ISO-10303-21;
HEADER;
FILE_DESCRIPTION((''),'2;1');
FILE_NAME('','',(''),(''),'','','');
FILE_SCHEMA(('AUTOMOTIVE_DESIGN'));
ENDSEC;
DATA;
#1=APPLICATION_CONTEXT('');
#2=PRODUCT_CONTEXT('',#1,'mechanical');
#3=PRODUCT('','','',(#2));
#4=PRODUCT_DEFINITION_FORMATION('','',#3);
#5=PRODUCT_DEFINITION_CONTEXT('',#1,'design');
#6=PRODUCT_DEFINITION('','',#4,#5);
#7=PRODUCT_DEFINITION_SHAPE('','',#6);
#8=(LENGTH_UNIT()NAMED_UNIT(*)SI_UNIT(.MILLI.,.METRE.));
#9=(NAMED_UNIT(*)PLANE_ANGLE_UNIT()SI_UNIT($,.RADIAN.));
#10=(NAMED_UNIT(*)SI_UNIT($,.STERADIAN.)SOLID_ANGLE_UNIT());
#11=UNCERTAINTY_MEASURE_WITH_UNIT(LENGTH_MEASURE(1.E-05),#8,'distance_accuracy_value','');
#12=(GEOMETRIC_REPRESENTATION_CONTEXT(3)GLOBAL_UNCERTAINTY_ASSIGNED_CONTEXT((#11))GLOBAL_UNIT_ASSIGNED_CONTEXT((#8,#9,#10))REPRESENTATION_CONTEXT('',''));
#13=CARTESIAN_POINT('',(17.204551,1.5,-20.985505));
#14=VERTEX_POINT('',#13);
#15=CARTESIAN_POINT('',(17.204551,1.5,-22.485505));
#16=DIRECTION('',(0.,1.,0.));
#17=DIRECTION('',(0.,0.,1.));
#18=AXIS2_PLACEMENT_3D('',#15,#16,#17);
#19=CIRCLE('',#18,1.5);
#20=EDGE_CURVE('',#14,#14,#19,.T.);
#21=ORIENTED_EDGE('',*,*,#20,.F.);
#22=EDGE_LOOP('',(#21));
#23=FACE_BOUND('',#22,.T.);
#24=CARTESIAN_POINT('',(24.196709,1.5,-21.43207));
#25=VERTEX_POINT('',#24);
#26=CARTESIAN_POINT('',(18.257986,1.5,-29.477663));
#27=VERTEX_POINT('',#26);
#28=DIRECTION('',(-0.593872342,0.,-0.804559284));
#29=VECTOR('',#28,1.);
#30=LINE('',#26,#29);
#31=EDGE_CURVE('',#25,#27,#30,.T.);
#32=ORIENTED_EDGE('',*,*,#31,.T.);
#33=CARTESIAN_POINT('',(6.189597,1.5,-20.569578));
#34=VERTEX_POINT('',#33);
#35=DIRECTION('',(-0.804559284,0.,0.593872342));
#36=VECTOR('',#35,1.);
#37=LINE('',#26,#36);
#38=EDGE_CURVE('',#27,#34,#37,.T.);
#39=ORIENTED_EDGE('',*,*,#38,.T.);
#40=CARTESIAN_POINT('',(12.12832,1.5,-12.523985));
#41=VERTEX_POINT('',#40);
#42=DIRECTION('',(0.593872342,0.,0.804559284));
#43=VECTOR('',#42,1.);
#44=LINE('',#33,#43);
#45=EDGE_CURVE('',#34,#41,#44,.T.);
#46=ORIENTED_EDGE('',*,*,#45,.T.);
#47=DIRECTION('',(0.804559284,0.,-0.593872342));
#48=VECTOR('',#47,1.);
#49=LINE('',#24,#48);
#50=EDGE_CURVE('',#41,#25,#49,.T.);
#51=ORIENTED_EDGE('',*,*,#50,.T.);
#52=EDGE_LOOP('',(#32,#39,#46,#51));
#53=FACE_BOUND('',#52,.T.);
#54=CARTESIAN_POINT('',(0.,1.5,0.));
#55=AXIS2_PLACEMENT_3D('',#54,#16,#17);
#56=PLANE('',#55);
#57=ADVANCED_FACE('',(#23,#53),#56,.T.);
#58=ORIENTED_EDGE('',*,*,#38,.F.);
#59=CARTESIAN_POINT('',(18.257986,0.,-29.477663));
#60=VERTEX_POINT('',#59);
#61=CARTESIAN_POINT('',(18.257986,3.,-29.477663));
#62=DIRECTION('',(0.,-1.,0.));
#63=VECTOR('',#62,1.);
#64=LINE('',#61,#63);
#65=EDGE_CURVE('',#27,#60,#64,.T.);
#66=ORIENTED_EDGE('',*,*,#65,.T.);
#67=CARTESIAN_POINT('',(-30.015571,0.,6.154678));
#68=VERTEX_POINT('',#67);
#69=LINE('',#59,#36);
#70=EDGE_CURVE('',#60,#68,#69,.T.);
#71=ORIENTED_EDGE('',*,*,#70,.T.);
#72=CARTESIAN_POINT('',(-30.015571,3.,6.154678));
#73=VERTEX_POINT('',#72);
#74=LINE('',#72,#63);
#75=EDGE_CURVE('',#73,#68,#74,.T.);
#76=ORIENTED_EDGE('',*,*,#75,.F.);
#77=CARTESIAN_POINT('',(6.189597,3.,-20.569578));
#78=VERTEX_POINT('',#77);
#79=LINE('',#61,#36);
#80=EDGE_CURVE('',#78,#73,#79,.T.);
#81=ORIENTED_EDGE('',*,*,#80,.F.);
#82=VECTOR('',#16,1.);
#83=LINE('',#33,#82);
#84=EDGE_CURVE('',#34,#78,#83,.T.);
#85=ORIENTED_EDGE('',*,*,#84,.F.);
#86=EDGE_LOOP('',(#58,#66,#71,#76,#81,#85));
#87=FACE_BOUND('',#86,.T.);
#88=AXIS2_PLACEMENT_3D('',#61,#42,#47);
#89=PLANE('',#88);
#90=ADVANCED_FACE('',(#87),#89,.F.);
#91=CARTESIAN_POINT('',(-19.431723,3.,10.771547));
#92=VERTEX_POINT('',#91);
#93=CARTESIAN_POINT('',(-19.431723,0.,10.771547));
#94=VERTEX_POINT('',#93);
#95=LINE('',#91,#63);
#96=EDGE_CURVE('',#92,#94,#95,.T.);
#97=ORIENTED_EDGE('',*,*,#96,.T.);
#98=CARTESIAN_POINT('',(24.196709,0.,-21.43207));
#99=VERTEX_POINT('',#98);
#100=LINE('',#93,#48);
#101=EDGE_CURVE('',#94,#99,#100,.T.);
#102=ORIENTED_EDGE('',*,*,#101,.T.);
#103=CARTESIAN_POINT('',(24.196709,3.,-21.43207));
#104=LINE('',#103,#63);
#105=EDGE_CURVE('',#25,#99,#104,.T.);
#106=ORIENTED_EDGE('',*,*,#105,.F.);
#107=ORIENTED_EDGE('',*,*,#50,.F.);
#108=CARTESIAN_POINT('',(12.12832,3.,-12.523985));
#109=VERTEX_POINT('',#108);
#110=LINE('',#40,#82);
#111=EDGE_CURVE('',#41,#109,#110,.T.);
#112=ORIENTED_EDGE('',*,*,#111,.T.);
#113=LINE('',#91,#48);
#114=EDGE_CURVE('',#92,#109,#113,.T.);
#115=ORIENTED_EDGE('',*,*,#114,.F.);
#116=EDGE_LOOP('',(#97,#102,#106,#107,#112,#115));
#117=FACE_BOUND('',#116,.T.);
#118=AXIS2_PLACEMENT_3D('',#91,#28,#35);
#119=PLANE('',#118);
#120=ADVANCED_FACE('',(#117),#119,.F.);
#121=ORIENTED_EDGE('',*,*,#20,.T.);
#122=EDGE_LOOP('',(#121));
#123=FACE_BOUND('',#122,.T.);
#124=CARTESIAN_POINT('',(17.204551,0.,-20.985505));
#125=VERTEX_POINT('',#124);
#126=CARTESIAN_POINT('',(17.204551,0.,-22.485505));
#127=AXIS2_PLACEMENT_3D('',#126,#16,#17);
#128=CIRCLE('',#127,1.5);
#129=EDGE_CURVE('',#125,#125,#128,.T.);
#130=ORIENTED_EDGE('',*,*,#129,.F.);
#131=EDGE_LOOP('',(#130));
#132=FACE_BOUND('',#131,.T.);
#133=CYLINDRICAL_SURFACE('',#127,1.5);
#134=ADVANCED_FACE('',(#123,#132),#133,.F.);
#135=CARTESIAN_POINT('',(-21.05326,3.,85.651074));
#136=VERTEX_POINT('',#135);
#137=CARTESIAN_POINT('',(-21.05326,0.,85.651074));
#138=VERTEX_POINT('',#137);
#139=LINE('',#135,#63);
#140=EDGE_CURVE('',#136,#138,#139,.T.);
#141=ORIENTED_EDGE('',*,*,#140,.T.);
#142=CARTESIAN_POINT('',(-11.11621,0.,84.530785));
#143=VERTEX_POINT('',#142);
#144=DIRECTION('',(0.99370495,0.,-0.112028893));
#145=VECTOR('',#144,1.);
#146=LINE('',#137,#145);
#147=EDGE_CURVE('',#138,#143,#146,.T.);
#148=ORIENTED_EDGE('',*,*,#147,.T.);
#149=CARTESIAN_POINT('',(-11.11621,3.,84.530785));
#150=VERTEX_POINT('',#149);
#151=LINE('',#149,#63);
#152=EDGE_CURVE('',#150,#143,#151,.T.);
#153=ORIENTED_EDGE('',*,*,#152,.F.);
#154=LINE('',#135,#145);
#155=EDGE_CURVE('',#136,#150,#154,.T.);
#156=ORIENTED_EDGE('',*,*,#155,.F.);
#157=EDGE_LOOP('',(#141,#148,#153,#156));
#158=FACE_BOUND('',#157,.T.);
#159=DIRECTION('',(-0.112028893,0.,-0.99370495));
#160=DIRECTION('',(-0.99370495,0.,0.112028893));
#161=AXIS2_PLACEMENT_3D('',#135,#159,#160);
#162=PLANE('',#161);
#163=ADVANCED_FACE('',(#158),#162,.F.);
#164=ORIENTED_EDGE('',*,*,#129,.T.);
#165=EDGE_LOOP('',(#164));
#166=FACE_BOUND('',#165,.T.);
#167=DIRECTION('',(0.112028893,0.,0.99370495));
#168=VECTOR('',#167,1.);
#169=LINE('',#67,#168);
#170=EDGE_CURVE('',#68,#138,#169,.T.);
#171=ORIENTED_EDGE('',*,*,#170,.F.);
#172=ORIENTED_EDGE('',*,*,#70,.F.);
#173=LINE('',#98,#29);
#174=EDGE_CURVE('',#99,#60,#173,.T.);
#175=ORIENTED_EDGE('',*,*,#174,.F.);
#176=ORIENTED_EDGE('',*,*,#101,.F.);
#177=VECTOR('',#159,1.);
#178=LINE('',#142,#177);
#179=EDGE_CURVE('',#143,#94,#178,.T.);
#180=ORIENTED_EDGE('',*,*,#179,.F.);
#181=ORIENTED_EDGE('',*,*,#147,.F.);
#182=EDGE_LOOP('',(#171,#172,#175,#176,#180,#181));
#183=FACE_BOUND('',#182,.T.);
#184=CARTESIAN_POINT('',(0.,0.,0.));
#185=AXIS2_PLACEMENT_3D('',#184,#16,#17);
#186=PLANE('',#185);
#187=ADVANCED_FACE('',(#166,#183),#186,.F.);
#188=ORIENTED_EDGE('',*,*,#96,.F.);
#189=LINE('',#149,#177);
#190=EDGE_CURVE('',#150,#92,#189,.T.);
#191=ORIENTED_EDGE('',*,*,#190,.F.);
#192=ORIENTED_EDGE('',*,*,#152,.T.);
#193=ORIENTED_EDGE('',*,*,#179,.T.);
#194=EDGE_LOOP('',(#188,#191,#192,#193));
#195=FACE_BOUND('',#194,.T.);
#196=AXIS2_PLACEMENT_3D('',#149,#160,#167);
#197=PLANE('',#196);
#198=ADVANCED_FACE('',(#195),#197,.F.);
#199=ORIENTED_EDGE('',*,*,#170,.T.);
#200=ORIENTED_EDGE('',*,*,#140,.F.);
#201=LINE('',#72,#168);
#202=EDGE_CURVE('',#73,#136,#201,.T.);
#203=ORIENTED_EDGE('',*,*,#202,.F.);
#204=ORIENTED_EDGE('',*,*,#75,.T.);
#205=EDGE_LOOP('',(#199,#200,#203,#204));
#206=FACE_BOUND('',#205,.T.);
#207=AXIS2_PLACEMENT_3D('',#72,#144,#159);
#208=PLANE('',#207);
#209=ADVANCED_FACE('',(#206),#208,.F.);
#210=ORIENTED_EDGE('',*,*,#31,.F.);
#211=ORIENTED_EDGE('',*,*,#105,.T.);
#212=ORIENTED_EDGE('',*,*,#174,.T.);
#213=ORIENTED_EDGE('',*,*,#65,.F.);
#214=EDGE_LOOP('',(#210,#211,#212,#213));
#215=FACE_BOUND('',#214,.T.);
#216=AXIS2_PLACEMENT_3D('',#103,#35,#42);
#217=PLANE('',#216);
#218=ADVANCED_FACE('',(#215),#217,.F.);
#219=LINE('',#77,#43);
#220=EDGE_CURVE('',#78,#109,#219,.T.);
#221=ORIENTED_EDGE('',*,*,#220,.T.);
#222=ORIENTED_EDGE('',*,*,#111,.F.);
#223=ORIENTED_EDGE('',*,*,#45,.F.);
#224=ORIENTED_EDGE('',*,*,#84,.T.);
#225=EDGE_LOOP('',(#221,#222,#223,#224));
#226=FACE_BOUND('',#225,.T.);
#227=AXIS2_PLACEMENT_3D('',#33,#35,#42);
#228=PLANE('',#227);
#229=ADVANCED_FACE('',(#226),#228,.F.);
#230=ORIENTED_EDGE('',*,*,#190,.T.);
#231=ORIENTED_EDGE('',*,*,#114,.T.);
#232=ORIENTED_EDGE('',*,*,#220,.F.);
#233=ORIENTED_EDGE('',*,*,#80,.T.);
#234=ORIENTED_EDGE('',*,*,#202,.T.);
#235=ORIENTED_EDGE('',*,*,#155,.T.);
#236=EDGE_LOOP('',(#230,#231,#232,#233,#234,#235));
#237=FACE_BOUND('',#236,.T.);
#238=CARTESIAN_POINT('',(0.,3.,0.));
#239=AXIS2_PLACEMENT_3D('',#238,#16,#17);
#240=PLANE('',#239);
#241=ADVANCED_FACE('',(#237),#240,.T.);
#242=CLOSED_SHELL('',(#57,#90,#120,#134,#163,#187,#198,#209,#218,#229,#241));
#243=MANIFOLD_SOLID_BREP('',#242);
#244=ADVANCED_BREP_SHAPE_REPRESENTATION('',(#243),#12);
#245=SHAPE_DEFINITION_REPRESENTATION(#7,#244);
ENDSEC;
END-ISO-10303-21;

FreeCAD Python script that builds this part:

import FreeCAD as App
import Part
import Sketcher

V = App.Vector

doc = App.newDocument("Part")
body = doc.addObject("PartDesign::Body", "Body")

sketch1 = body.newObject("Sketcher::SketchObject", "Sketch")
sketch1.AttachmentSupport = (doc.getObject("XZ_Plane"), [""])
sketch1.MapMode = "FlatFace"
sketch1.addGeometry([
    Part.LineSegment(V(18, -29, 0), V(-30, 6, 0)),
    Part.LineSegment(V(-30, 6, 0), V(-21, 86, 0)),
    Part.LineSegment(V(-21, 86, 0), V(-11, 85, 0)),
    Part.LineSegment(V(-11, 85, 0), V(-19, 11, 0)),
    Part.LineSegment(V(-19, 11, 0), V(24, -21, 0)),
    Part.LineSegment(V(24, -21, 0), V(18, -29, 0)),
], False)
sketch1.addConstraint([
    Sketcher.Constraint("Coincident", 0, 2, 1, 1),
    Sketcher.Constraint("Coincident", 1, 2, 2, 1),
    Sketcher.Constraint("Coincident", 2, 2, 3, 1),
    Sketcher.Constraint("Coincident", 3, 2, 4, 1),
    Sketcher.Constraint("Coincident", 4, 2, 5, 1),
    Sketcher.Constraint("Coincident", 5, 2, 0, 1),
    Sketcher.Constraint("Perpendicular", 1, 2),
    Sketcher.Constraint("Perpendicular", 2, 3),
    Sketcher.Constraint("Parallel", 0, 4),
    Sketcher.Constraint("Perpendicular", 4, 5),
    Sketcher.Constraint("Equal", 2, 5),
    Sketcher.Constraint("Distance", 0, 60.0),
    Sketcher.Constraint("Distance", 1, 80.0),
    Sketcher.Constraint("Distance", 2, 10.0),
    Sketcher.Constraint("DistanceX", 0, 2, -1, 1, 30.015571),
    Sketcher.Constraint("DistanceX", 1, 2, -1, 1, 21.05326),
    Sketcher.Constraint("DistanceX", -1, 1, 4, 2, 24.196709),
    Sketcher.Constraint("DistanceY", 4, 2, -1, 1, 21.43207),
])
pad1 = body.newObject("PartDesign::Pad", "Pad")
pad1.Profile = sketch1
pad1.Length = 3
pad1.Reversed = True

sketch2 = body.newObject("Sketcher::SketchObject", "Sketch001")
sketch2.AttachmentSupport = (doc.getObject("XZ_Plane"), [""])
sketch2.MapMode = "FlatFace"
sketch2.AttachmentOffset = App.Placement(V(0, 0, -3), App.Rotation())
sketch2.addGeometry([
    Part.LineSegment(V(24, -21, 0), V(18, -29, 0)),
    Part.LineSegment(V(18, -29, 0), V(6, -21, 0)),
    Part.LineSegment(V(6, -21, 0), V(12, -13, 0)),
    Part.LineSegment(V(12, -13, 0), V(24, -21, 0)),
], False)
sketch2.addConstraint([
    Sketcher.Constraint("Coincident", 0, 2, 1, 1),
    Sketcher.Constraint("Coincident", 1, 2, 2, 1),
    Sketcher.Constraint("Coincident", 2, 2, 3, 1),
    Sketcher.Constraint("Coincident", 3, 2, 0, 1),
    Sketcher.Constraint("Perpendicular", 0, 1),
    Sketcher.Constraint("Perpendicular", 1, 2),
    Sketcher.Constraint("Perpendicular", 2, 3),
    Sketcher.Constraint("Distance", 0, 10.0),
    Sketcher.Constraint("Distance", 1, 15.0),
    Sketcher.Constraint("DistanceX", -1, 1, 2, 2, 12.12832),
    Sketcher.Constraint("DistanceX", -1, 1, 3, 2, 24.196709),
    Sketcher.Constraint("DistanceY", 3, 2, -1, 1, 21.43207),
])
pocket1 = body.newObject("PartDesign::Pocket", "Pocket")
pocket1.Profile = sketch2
pocket1.Length = 1.5
pocket1.Reversed = True

sketch3 = body.newObject("Sketcher::SketchObject", "Sketch002")
sketch3.AttachmentSupport = (doc.getObject("XZ_Plane"), [""])
sketch3.MapMode = "FlatFace"
sketch3.AttachmentOffset = App.Placement(V(0, 0, -1.5), App.Rotation())
sketch3.addGeometry(Part.Circle(V(17.2, -22.5, 0), V(0, 0, 1), 1.5), False)
sketch3.addConstraint([
    Sketcher.Constraint("Diameter", 0, 3.0),
    Sketcher.Constraint("DistanceX", -1, 1, 0, 3, 17.204551),
    Sketcher.Constraint("DistanceY", 0, 3, -1, 1, 22.485505),
])
pocket2 = body.newObject("PartDesign::Pocket", "Pocket001")
pocket2.Profile = sketch3
pocket2.Length = 1.5
pocket2.Reversed = True

doc.recompute()
